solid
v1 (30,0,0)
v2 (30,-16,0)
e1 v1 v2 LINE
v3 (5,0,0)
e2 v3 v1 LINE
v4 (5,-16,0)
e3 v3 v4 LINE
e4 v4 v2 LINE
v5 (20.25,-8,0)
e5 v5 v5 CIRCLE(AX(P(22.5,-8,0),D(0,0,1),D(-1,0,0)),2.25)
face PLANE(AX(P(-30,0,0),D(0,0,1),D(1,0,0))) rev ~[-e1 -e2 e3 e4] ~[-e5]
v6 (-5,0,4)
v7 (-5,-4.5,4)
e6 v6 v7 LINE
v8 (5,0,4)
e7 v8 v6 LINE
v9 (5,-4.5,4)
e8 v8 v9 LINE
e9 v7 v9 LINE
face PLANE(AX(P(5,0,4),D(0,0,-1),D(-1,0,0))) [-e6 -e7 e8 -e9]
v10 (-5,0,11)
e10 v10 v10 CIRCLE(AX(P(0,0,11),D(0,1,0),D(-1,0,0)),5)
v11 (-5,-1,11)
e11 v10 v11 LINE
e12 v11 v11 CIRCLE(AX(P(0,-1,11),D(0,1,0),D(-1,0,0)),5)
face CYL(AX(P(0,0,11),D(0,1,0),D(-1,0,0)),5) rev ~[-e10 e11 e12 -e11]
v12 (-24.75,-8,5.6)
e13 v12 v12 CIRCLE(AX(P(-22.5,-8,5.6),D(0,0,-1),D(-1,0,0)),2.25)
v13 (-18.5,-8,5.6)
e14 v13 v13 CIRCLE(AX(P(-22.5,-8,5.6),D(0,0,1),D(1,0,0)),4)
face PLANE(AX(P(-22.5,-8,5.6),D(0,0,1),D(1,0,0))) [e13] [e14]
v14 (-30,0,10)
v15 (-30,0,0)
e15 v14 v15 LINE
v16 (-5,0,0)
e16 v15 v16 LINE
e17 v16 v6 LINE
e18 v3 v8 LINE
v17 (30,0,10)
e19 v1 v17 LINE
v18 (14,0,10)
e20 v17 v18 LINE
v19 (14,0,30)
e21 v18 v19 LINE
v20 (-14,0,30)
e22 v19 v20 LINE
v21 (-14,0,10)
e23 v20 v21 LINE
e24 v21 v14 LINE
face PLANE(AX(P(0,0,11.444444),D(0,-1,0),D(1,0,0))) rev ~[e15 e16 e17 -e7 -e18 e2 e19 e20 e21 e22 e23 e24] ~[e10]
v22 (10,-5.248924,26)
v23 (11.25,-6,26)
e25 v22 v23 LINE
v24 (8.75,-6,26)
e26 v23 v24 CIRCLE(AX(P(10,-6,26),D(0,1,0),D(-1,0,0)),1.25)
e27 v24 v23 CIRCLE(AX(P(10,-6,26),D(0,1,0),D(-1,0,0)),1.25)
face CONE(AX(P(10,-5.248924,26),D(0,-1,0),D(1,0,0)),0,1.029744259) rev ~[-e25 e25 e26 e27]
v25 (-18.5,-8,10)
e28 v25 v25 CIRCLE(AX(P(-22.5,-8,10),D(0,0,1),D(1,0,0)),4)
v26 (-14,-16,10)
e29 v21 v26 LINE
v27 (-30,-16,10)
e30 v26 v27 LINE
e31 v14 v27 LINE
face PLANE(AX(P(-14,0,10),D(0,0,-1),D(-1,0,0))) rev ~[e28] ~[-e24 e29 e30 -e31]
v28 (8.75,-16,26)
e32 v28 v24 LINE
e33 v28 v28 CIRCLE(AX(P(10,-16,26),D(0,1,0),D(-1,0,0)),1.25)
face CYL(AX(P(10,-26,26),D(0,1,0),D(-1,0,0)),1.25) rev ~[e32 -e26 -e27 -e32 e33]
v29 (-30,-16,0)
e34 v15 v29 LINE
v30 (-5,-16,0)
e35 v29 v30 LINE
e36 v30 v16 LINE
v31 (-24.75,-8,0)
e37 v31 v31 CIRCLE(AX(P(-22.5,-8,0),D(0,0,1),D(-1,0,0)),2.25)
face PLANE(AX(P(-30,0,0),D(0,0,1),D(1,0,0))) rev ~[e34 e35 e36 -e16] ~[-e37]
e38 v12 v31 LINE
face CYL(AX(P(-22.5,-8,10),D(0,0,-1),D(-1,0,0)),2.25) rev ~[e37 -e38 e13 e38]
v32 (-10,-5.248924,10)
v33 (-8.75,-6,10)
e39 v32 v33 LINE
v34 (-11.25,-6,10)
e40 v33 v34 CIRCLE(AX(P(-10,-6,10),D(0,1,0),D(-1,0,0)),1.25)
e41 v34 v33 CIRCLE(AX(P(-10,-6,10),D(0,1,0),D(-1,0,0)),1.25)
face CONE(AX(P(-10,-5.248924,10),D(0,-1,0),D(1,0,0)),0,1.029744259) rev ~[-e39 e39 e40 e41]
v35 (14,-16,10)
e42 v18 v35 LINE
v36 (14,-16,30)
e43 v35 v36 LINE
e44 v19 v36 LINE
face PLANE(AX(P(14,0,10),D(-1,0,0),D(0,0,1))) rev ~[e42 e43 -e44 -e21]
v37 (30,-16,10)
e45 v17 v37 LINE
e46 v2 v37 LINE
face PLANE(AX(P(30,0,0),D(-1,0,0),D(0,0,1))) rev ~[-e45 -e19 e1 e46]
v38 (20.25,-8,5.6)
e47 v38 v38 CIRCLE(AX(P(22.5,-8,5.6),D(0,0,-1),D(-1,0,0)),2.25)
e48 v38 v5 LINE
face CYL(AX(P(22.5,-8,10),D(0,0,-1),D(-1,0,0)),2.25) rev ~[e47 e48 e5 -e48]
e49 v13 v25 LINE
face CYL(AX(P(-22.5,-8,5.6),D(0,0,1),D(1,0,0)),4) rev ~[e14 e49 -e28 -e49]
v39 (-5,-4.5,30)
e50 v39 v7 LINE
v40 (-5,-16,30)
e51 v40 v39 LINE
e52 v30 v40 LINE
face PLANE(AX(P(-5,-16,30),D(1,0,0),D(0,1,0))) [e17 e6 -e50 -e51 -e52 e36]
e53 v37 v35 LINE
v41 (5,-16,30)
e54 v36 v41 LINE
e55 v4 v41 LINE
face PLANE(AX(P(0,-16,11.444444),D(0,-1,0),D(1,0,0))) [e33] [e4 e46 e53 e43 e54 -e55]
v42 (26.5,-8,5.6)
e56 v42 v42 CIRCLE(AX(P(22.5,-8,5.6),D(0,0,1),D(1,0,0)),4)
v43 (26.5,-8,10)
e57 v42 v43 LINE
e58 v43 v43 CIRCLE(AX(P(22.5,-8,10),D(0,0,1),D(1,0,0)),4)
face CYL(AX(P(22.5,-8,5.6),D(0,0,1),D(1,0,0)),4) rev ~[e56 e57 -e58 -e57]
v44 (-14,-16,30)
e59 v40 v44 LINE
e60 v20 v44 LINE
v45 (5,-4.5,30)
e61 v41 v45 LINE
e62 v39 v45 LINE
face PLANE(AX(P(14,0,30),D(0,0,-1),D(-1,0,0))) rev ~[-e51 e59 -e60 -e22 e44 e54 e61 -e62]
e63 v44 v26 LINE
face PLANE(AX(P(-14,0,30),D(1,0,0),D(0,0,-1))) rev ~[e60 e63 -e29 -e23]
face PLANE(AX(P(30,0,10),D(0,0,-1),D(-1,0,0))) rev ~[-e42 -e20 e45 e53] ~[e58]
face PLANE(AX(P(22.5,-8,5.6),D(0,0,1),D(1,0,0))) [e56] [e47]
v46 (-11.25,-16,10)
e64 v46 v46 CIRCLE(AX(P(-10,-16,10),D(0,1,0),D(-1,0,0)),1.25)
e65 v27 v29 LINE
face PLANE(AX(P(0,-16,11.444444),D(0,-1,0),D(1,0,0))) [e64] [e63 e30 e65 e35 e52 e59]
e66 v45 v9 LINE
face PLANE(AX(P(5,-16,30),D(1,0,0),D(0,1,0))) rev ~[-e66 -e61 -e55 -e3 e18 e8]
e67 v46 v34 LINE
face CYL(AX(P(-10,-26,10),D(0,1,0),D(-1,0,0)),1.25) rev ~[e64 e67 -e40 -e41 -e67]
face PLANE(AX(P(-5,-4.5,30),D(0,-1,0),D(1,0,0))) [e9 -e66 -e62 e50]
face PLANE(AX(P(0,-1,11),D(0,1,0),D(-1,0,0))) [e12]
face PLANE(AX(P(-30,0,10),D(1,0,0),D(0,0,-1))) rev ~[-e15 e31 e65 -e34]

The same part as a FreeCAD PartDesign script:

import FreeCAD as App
import Part
import Sketcher
from FreeCAD import Vector


def add_polygon(sketch, points):
    """Adds a closed chain of lines whose ends are joined by coincident constraints."""
    first, n = sketch.GeometryCount, len(points)
    for a, b in zip(points, points[1:] + points[:1]):
        sketch.addGeometry(Part.LineSegment(App.Vector(*a, 0), App.Vector(*b, 0)), False)
    for i in range(n):
        sketch.addConstraint(Sketcher.Constraint("Coincident", first + i, 2, first + (i + 1) % n, 1))

doc = App.newDocument("Part")
body = doc.addObject("PartDesign::Body", "Body")

# Sketch on XZ plane
sketch1 = body.newObject("Sketcher::SketchObject", "Sketch")
sketch1.AttachmentSupport = (doc.getObject("XZ_Plane"), [""])
sketch1.MapMode = "FlatFace"
add_polygon(sketch1, [(14, 30), (-14, 30), (-14, 10), (-30, 10), (-30, 0), (30, 0), (30, 10), (14, 10)])  # lines 0-7
sketch1.addConstraint([
    Sketcher.Constraint("Horizontal", 0),
    Sketcher.Constraint("Vertical", 1),
    Sketcher.Constraint("Horizontal", 2),
    Sketcher.Constraint("Vertical", 3),
    Sketcher.Constraint("Horizontal", 4),
    Sketcher.Constraint("Vertical", 5),
    Sketcher.Constraint("Horizontal", 6),
    Sketcher.Constraint("Vertical", 7),
    Sketcher.Constraint("Symmetric", 3, 2, 4, 2, -1, 1),
    Sketcher.Constraint("Symmetric", 1, 2, 6, 2, -2),
    Sketcher.Constraint("DistanceX", 0, 2, 0, 1, 28.0),
    Sketcher.Constraint("DistanceX", 2, 2, 2, 1, 16.0),
    Sketcher.Constraint("DistanceY", 1, 2, 1, 1, 20.0),
    Sketcher.Constraint("DistanceY", 3, 2, 3, 1, 10.0),
])
pad1 = body.newObject("PartDesign::Pad", "Pad")
pad1.Profile = sketch1
pad1.Length = 16

# Sketch on XY plane
sketch2 = body.newObject("Sketcher::SketchObject", "Sketch001")
sketch2.AttachmentSupport = (doc.getObject("XY_Plane"), [""])
sketch2.MapMode = "FlatFace"
sketch2.AttachmentOffset = App.Placement(Vector(0, 0, 30), App.Rotation())
add_polygon(sketch2, [(-5, -4), (-5, -16), (5, -16), (5, -4)])  # lines 0-3
sketch2.addConstraint([
    Sketcher.Constraint("Vertical", 0),
    Sketcher.Constraint("Horizontal", 1),
    Sketcher.Constraint("Vertical", 2),
    Sketcher.Constraint("Horizontal", 3),
    Sketcher.Constraint("DistanceX", 1, 1, 1, 2, 10.0),
    Sketcher.Constraint("DistanceY", 0, 2, 0, 1, 11.5),
    Sketcher.Constraint("DistanceX", 0, 2, -1, 1, 5.0),
    Sketcher.Constraint("DistanceY", 0, 2, -1, 1, 16.0),
])
pocket1 = body.newObject("PartDesign::Pocket", "Pocket")
pocket1.Profile = sketch2
pocket1.Type = "ThroughAll"

# Sketch on XZ plane
sketch3 = body.newObject("Sketcher::SketchObject", "Sketch002")
sketch3.AttachmentSupport = (doc.getObject("XZ_Plane"), [""])
sketch3.MapMode = "FlatFace"
add_polygon(sketch3, [(5, 4), (5, 0), (-5, 0), (-5, 4)])  # lines 0-3
sketch3.addConstraint([
    Sketcher.Constraint("Vertical", 0),
    Sketcher.Constraint("Horizontal", 1),
    Sketcher.Constraint("Vertical", 2),
    Sketcher.Constraint("Horizontal", 3),
    Sketcher.Constraint("Symmetric", 0, 2, 1, 2, -1, 1),
    Sketcher.Constraint("DistanceX", 1, 2, 1, 1, 10.0),
    Sketcher.Constraint("DistanceY", 0, 2, 0, 1, 4.0),
])
pocket2 = body.newObject("PartDesign::Pocket", "Pocket001")
pocket2.Profile = sketch3
pocket2.Type = "ThroughAll"
pocket2.Reversed = True

# Sketch on XZ plane
sketch4 = body.newObject("Sketcher::SketchObject", "Sketch003")
sketch4.AttachmentSupport = (doc.getObject("XZ_Plane"), [""])
sketch4.MapMode = "FlatFace"
sketch4.AttachmentOffset = App.Placement(Vector(0, 0, 16), App.Rotation())
sketch4.addGeometry([
    Part.Circle(Vector(10, 26, 0), Vector(0, 0, 1), 1.2),
    Part.Circle(Vector(-10, 10, 0), Vector(0, 0, 1), 1.2),
], False)
sketch4.addConstraint([
    Sketcher.Constraint("Equal", 0, 1),
    Sketcher.Constraint("Diameter", 0, 2.5),
    Sketcher.Constraint("DistanceX", -1, 1, 0, 3, 10.0),
    Sketcher.Constraint("DistanceY", -1, 1, 0, 3, 26.0),
    Sketcher.Constraint("DistanceX", 1, 3, -1, 1, 10.0),
    Sketcher.Constraint("DistanceY", -1, 1, 1, 3, 10.0),
])
doc.recompute()
hole = body.newObject("PartDesign::Hole", "Hole")
hole.Profile = sketch4
hole.ThreadType = "None"
hole.Diameter = 2.5
hole.DepthType = "Dimension"
hole.Depth = 10
hole.DrillPoint = "Angled"
hole.DrillPointAngle = 118

# Sketch on XY plane
sketch5 = body.newObject("Sketcher::SketchObject", "Sketch004")
sketch5.AttachmentSupport = (doc.getObject("XY_Plane"), [""])
sketch5.MapMode = "FlatFace"
sketch5.AttachmentOffset = App.Placement(Vector(0, 0, 10), App.Rotation())
sketch5.addGeometry([
    Part.Circle(Vector(22.5, -8, 0), Vector(0, 0, 1), 2.2),
    Part.Circle(Vector(-22.5, -8, 0), Vector(0, 0, 1), 2.2),
], False)
sketch5.addConstraint([
    Sketcher.Constraint("Equal", 0, 1),
    Sketcher.Constraint("Symmetric", 0, 3, 1, 3, -2),
    Sketcher.Constraint("Diameter", 0, 4.5),
    Sketcher.Constraint("DistanceY", 0, 3, -1, 1, 8.0),
    Sketcher.Constraint("DistanceX", 1, 3, 0, 3, 45.0),
])
doc.recompute()
hole2 = body.newObject("PartDesign::Hole", "Hole001")
hole2.Profile = sketch5
hole2.ThreadType = "None"
hole2.Diameter = 4.5
hole2.DepthType = "Dimension"
hole2.Depth = 10
hole2.DrillPoint = "Angled"
hole2.DrillPointAngle = 118
hole2.HoleCutType = "Counterbore"
hole2.HoleCutDiameter = 8
hole2.HoleCutDepth = 4.4

# Sketch on XZ plane
sketch6 = body.newObject("Sketcher::SketchObject", "Sketch005")
sketch6.AttachmentSupport = (doc.getObject("XZ_Plane"), [""])
sketch6.MapMode = "FlatFace"
sketch6.addGeometry(Part.Circle(Vector(0, 11, 0), Vector(0, 0, 1), 5), False)
sketch6.addConstraint([
    Sketcher.Constraint("PointOnObject", 0, 3, -2),
    Sketcher.Constraint("Diameter", 0, 10.0),
    Sketcher.Constraint("DistanceY", -1, 1, 0, 3, 11.0),
])
pocket3 = body.newObject("PartDesign::Pocket", "Pocket002")
pocket3.Profile = sketch6
pocket3.Length = 1
pocket3.Reversed = True

doc.recompute()
